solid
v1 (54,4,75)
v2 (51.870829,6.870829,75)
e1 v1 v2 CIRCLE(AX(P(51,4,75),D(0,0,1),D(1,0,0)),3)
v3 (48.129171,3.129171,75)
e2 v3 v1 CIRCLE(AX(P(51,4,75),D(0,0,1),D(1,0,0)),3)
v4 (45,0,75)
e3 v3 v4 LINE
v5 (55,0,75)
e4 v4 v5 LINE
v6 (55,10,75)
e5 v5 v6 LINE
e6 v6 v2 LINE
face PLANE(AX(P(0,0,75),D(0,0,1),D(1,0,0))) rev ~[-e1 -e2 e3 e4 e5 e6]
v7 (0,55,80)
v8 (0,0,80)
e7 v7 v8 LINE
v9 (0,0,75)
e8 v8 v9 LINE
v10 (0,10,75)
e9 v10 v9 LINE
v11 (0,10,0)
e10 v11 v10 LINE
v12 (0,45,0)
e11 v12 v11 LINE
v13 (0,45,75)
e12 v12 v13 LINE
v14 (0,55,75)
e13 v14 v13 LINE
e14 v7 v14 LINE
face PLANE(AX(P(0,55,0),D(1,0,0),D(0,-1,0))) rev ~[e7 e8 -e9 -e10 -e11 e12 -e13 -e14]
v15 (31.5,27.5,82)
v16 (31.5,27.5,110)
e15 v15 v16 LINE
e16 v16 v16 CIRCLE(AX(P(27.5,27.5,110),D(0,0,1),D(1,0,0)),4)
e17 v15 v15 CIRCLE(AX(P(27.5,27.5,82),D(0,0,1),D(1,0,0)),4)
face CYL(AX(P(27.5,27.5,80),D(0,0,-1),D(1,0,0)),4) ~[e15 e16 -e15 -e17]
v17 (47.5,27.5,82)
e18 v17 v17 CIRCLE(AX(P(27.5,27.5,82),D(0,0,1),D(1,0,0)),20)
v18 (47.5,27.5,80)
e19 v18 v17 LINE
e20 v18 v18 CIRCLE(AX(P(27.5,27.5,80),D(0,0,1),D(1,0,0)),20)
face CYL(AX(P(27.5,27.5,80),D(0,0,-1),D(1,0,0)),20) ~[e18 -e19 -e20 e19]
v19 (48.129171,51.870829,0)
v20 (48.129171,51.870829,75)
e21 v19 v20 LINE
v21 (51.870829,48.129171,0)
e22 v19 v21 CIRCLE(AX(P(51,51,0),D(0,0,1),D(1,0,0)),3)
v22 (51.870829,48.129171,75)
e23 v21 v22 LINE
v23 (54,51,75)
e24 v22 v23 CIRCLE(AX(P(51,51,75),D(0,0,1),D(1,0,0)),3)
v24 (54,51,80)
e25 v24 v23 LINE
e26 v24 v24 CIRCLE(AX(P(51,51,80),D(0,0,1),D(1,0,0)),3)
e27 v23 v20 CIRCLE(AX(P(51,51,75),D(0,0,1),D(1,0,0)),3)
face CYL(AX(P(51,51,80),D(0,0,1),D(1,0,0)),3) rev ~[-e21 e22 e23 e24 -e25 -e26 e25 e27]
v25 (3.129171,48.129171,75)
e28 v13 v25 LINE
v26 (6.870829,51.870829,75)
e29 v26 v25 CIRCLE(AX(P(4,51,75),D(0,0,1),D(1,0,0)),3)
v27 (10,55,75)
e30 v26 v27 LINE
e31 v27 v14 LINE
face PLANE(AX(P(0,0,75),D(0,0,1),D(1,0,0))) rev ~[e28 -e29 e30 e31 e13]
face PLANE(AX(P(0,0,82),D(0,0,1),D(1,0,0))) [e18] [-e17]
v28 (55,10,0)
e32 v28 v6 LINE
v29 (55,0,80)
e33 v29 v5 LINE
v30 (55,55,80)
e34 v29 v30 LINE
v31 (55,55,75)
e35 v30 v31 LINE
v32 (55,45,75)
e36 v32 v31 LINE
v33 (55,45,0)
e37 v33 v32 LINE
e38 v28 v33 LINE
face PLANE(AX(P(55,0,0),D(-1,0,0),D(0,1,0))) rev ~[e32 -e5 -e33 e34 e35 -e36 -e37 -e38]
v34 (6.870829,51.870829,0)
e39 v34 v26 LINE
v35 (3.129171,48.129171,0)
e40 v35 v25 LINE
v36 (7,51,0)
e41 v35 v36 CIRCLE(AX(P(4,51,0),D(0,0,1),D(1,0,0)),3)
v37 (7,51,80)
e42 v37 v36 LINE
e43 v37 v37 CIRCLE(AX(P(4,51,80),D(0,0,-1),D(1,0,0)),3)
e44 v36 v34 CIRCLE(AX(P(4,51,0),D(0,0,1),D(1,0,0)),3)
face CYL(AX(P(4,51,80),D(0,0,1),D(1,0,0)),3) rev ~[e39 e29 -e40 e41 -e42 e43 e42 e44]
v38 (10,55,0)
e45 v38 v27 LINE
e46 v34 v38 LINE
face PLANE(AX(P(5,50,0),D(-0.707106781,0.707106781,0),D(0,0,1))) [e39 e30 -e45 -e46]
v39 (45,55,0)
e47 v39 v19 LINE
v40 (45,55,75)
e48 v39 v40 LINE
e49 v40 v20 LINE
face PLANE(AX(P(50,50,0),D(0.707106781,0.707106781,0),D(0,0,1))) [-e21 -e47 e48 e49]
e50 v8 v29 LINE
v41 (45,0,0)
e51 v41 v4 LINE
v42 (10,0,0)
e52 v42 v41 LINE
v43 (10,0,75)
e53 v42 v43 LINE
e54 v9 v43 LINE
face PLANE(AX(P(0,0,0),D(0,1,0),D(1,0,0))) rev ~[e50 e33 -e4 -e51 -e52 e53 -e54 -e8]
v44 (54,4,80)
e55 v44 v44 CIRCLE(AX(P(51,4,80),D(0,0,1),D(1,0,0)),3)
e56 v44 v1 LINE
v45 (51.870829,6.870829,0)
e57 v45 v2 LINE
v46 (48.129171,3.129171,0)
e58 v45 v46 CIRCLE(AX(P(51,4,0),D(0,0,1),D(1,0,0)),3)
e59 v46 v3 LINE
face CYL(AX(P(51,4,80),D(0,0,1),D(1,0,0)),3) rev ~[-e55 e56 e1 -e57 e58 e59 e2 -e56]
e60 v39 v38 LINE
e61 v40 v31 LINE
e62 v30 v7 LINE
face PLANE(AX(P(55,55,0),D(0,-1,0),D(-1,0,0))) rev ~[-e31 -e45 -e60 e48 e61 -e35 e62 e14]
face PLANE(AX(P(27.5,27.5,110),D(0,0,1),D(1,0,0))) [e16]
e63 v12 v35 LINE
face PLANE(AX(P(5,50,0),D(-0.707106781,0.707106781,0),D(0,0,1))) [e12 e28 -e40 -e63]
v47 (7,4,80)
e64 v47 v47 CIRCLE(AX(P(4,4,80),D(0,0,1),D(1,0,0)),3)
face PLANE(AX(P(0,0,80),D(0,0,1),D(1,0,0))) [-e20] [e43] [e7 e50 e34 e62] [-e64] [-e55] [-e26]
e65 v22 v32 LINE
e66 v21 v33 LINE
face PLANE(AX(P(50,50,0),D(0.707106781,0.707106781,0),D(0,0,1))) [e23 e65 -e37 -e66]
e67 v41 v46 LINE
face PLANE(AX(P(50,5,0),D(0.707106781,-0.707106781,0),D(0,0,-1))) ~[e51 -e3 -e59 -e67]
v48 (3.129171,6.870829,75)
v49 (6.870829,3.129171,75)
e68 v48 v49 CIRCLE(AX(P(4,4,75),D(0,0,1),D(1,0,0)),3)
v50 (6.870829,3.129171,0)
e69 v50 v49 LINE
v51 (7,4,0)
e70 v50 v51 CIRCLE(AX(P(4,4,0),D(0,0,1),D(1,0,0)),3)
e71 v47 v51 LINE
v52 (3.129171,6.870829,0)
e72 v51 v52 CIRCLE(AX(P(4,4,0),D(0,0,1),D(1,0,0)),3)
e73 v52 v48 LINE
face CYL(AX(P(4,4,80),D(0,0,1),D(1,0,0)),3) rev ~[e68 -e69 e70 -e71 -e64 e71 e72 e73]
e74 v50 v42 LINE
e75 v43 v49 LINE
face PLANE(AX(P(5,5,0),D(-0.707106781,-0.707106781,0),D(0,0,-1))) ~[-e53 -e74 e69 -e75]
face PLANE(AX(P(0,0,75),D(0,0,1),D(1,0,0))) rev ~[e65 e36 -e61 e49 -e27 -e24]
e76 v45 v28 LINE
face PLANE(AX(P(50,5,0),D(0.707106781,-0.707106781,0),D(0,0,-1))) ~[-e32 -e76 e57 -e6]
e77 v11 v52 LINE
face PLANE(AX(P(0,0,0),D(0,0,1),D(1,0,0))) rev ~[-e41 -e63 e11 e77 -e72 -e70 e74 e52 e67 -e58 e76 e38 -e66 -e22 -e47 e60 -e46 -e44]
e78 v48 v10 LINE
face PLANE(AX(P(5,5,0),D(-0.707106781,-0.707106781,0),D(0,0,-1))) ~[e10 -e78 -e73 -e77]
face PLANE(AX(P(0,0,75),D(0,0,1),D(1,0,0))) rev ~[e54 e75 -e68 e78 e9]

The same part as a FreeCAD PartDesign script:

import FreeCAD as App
import Part
import Sketcher
from FreeCAD import Vector


def edges_at(feature, points):
    """Names of the edges that pass closest to the given points."""
    edges = feature.Shape.Edges
    near = lambda p: min(range(len(edges)), key=lambda i: edges[i].distToShape(Part.Vertex(*p))[0])
    return sorted({f"Edge{near(p) + 1}" for p in points})

doc = App.newDocument("Part")
body = doc.addObject("PartDesign::Body", "Body")

# Sketch on XY plane
sketch1 = doc.addObject("Sketcher::SketchObject", "Sketch")
body.addObject(sketch1)
sketch1.AttachmentSupport = (doc.XY_Plane, [""])
sketch1.MapMode = "FlatFace"
sketch1.addGeometry([
    Part.LineSegment(Vector(0, 55, 0), Vector(0, 0, 0)),
    Part.LineSegment(Vector(0, 0, 0), Vector(55, 0, 0)),
    Part.LineSegment(Vector(55, 0, 0), Vector(55, 55, 0)),
    Part.LineSegment(Vector(55, 55, 0), Vector(0, 55, 0)),
], False)
sketch1.addConstraint([
    Sketcher.Constraint("Coincident", 0, 2, 1, 1),
    Sketcher.Constraint("Coincident", 1, 2, 2, 1),
    Sketcher.Constraint("Coincident", 2, 2, 3, 1),
    Sketcher.Constraint("Coincident", 3, 2, 0, 1),
    Sketcher.Constraint("Vertical", 0),
    Sketcher.Constraint("Horizontal", 1),
    Sketcher.Constraint("Vertical", 2),
    Sketcher.Constraint("Horizontal", 3),
    Sketcher.Constraint("Coincident", 0, 2, -1, 1),
    Sketcher.Constraint("Equal", 3, 0),
    Sketcher.Constraint("DistanceX", 1, 1, 1, 2, 55.0),
])
pad1 = doc.addObject("PartDesign::Pad", "Pad")
body.addObject(pad1)
pad1.Profile = sketch1
pad1.Length = 80

# Sketch on XY plane
sketch2 = doc.addObject("Sketcher::SketchObject", "Sketch001")
body.addObject(sketch2)
sketch2.AttachmentSupport = (doc.XY_Plane, [""])
sketch2.MapMode = "FlatFace"
sketch2.AttachmentOffset = App.Placement(Vector(0, 0, 80), App.Rotation())
sketch2.addGeometry([
    Part.Circle(Vector(27.5, 27.5, 0), Vector(0, 0, 1), 20),
    Part.Circle(Vector(27.5, 27.5, 0), Vector(0, 0, 1), 4),
], False)
sketch2.addConstraint([
    Sketcher.Constraint("Coincident", 1, 3, 0, 3),
    Sketcher.Constraint("Diameter", 0, 40.0),
    Sketcher.Constraint("Diameter", 1, 8.0),
    Sketcher.Constraint("DistanceX", -1, 1, 0, 3, 27.5),
    Sketcher.Constraint("DistanceY", -1, 1, 0, 3, 27.5),
])
pad2 = doc.addObject("PartDesign::Pad", "Pad001")
body.addObject(pad2)
pad2.Profile = sketch2
pad2.Length = 2

# Sketch on XY plane
sketch3 = doc.addObject("Sketcher::SketchObject", "Sketch002")
body.addObject(sketch3)
sketch3.AttachmentSupport = (doc.XY_Plane, [""])
sketch3.MapMode = "FlatFace"
sketch3.AttachmentOffset = App.Placement(Vector(0, 0, 80), App.Rotation())
sketch3.addGeometry(Part.Circle(Vector(27.5, 27.5, 0), Vector(0, 0, 1), 4), False)
sketch3.addConstraint([
    Sketcher.Constraint("Diameter", 0, 8.0),
    Sketcher.Constraint("DistanceX", -1, 1, 0, 3, 27.5),
    Sketcher.Constraint("DistanceY", -1, 1, 0, 3, 27.5),
])
pad3 = doc.addObject("PartDesign::Pad", "Pad002")
body.addObject(pad3)
pad3.Profile = sketch3
pad3.Length = 30
doc.recompute()

chamfer = doc.addObject("PartDesign::Chamfer", "Chamfer")
body.addObject(chamfer)
chamfer.Base = (pad3, edges_at(pad3, [
    (0, 55, 40),
    (0, 0, 40),
    (55, 0, 40),
    (55, 55, 40),
]))
chamfer.Size = 10

# Sketch on XY plane
sketch4 = doc.addObject("Sketcher::SketchObject", "Sketch003")
body.addObject(sketch4)
sketch4.AttachmentSupport = (doc.XY_Plane, [""])
sketch4.MapMode = "FlatFace"
sketch4.AttachmentOffset = App.Placement(Vector(0, 0, 80), App.Rotation())
sketch4.addGeometry([
    Part.LineSegment(Vector(55, 55, 0), Vector(45, 55, 0)),  # 0
    Part.LineSegment(Vector(45, 55, 0), Vector(55, 45, 0)),  # 1
    Part.LineSegment(Vector(55, 45, 0), Vector(55, 55, 0)),  # 2
    Part.LineSegment(Vector(0, 45, 0), Vector(10, 55, 0)),  # 3
    Part.LineSegment(Vector(10, 55, 0), Vector(0, 55, 0)),  # 4
    Part.LineSegment(Vector(0, 55, 0), Vector(0, 45, 0)),  # 5
    Part.LineSegment(Vector(55, 0, 0), Vector(55, 10, 0)),  # 6
    Part.LineSegment(Vector(55, 10, 0), Vector(45, 0, 0)),  # 7
    Part.LineSegment(Vector(45, 0, 0), Vector(55, 0, 0)),  # 8
    Part.LineSegment(Vector(10, 0, 0), Vector(0, 10, 0)),  # 9
    Part.LineSegment(Vector(0, 10, 0), Vector(0, 0, 0)),  # 10
    Part.LineSegment(Vector(0, 0, 0), Vector(10, 0, 0)),  # 11
], False)
sketch4.addConstraint([
    Sketcher.Constraint("Coincident", 0, 2, 1, 1),
    Sketcher.Constraint("Coincident", 1, 2, 2, 1),
    Sketcher.Constraint("Coincident", 2, 2, 0, 1),
    Sketcher.Constraint("Coincident", 3, 2, 4, 1),
    Sketcher.Constraint("Coincident", 4, 2, 5, 1),
    Sketcher.Constraint("Coincident", 5, 2, 3, 1),
    Sketcher.Constraint("Coincident", 6, 2, 7, 1),
    Sketcher.Constraint("Coincident", 7, 2, 8, 1),
    Sketcher.Constraint("Coincident", 8, 2, 6, 1),
    Sketcher.Constraint("Coincident", 9, 2, 10, 1),
    Sketcher.Constraint("Coincident", 10, 2, 11, 1),
    Sketcher.Constraint("Coincident", 11, 2, 9, 1),
    Sketcher.Constraint("Horizontal", 0),
    Sketcher.Constraint("Vertical", 2),
    Sketcher.Constraint("Horizontal", 4),
    Sketcher.Constraint("Vertical", 5),
    Sketcher.Constraint("Vertical", 6),
    Sketcher.Constraint("Horizontal", 8),
    Sketcher.Constraint("Vertical", 10),
    Sketcher.Constraint("Horizontal", 11),
    Sketcher.Constraint("Coincident", 10, 2, -1, 1),
    Sketcher.Constraint("PointOnObject", 4, 2, -2),
    Sketcher.Constraint("PointOnObject", 7, 2, -1),
    Sketcher.Constraint("Perpendicular", 1, 3),
    Sketcher.Constraint("Parallel", 3, 7),
    Sketcher.Constraint("Perpendicular", 7, 9),
    Sketcher.Constraint("Horizontal", 2, 2, 3, 2),
    Sketcher.Constraint("Horizontal", 1, 2, 5, 2),
    Sketcher.Constraint("Horizontal", 6, 2, 9, 2),
    Sketcher.Constraint("Vertical", 2, 2, 6, 2),
    Sketcher.Constraint("Vertical", 0, 2, 7, 2),
    Sketcher.Constraint("Vertical", 3, 2, 11, 2),
    Sketcher.Constraint("DistanceX", 0, 2, 0, 1, 10.0),
    Sketcher.Constraint("DistanceX", -1, 1, 0, 2, 45.0),
    Sketcher.Constraint("DistanceY", -1, 1, 0, 2, 55.0),
])
pad4 = doc.addObject("PartDesign::Pad", "Pad003")
body.addObject(pad4)
pad4.Profile = sketch4
pad4.Length = 5
pad4.Reversed = True

# Sketch on XY plane
sketch5 = doc.addObject("Sketcher::SketchObject", "Sketch004")
body.addObject(sketch5)
sketch5.AttachmentSupport = (doc.XY_Plane, [""])
sketch5.MapMode = "FlatFace"
sketch5.AttachmentOffset = App.Placement(Vector(0, 0, 80), App.Rotation())
sketch5.addGeometry([
    Part.Circle(Vector(4, 51, 0), Vector(0, 0, 1), 3),
    Part.Circle(Vector(4, 4, 0), Vector(0, 0, 1), 3),
    Part.Circle(Vector(51, 4, 0), Vector(0, 0, 1), 3),
    Part.Circle(Vector(51, 51, 0), Vector(0, 0, 1), 3),
], False)
sketch5.addConstraint([
    Sketcher.Constraint("Equal", 0, 1),
    Sketcher.Constraint("Equal", 1, 2),
    Sketcher.Constraint("Equal", 2, 3),
    Sketcher.Constraint("Horizontal", 1, 3, 2, 3),
    Sketcher.Constraint("Horizontal", 0, 3, 3, 3),
    Sketcher.Constraint("Vertical", 0, 3, 1, 3),
    Sketcher.Constraint("Vertical", 2, 3, 3, 3),
    Sketcher.Constraint("Diameter", 0, 6.0),
    Sketcher.Constraint("DistanceX", -1, 1, 0, 3, 4.0),
    Sketcher.Constraint("DistanceY", -1, 1, 1, 3, 4.0),
    Sketcher.Constraint("DistanceY", -1, 1, 0, 3, 51.0),
    Sketcher.Constraint("DistanceX", -1, 1, 2, 3, 51.0),
])
pocket1 = doc.addObject("PartDesign::Pocket", "Pocket")
body.addObject(pocket1)
pocket1.Profile = sketch5
pocket1.Type = "ThroughAll"

doc.recompute()
